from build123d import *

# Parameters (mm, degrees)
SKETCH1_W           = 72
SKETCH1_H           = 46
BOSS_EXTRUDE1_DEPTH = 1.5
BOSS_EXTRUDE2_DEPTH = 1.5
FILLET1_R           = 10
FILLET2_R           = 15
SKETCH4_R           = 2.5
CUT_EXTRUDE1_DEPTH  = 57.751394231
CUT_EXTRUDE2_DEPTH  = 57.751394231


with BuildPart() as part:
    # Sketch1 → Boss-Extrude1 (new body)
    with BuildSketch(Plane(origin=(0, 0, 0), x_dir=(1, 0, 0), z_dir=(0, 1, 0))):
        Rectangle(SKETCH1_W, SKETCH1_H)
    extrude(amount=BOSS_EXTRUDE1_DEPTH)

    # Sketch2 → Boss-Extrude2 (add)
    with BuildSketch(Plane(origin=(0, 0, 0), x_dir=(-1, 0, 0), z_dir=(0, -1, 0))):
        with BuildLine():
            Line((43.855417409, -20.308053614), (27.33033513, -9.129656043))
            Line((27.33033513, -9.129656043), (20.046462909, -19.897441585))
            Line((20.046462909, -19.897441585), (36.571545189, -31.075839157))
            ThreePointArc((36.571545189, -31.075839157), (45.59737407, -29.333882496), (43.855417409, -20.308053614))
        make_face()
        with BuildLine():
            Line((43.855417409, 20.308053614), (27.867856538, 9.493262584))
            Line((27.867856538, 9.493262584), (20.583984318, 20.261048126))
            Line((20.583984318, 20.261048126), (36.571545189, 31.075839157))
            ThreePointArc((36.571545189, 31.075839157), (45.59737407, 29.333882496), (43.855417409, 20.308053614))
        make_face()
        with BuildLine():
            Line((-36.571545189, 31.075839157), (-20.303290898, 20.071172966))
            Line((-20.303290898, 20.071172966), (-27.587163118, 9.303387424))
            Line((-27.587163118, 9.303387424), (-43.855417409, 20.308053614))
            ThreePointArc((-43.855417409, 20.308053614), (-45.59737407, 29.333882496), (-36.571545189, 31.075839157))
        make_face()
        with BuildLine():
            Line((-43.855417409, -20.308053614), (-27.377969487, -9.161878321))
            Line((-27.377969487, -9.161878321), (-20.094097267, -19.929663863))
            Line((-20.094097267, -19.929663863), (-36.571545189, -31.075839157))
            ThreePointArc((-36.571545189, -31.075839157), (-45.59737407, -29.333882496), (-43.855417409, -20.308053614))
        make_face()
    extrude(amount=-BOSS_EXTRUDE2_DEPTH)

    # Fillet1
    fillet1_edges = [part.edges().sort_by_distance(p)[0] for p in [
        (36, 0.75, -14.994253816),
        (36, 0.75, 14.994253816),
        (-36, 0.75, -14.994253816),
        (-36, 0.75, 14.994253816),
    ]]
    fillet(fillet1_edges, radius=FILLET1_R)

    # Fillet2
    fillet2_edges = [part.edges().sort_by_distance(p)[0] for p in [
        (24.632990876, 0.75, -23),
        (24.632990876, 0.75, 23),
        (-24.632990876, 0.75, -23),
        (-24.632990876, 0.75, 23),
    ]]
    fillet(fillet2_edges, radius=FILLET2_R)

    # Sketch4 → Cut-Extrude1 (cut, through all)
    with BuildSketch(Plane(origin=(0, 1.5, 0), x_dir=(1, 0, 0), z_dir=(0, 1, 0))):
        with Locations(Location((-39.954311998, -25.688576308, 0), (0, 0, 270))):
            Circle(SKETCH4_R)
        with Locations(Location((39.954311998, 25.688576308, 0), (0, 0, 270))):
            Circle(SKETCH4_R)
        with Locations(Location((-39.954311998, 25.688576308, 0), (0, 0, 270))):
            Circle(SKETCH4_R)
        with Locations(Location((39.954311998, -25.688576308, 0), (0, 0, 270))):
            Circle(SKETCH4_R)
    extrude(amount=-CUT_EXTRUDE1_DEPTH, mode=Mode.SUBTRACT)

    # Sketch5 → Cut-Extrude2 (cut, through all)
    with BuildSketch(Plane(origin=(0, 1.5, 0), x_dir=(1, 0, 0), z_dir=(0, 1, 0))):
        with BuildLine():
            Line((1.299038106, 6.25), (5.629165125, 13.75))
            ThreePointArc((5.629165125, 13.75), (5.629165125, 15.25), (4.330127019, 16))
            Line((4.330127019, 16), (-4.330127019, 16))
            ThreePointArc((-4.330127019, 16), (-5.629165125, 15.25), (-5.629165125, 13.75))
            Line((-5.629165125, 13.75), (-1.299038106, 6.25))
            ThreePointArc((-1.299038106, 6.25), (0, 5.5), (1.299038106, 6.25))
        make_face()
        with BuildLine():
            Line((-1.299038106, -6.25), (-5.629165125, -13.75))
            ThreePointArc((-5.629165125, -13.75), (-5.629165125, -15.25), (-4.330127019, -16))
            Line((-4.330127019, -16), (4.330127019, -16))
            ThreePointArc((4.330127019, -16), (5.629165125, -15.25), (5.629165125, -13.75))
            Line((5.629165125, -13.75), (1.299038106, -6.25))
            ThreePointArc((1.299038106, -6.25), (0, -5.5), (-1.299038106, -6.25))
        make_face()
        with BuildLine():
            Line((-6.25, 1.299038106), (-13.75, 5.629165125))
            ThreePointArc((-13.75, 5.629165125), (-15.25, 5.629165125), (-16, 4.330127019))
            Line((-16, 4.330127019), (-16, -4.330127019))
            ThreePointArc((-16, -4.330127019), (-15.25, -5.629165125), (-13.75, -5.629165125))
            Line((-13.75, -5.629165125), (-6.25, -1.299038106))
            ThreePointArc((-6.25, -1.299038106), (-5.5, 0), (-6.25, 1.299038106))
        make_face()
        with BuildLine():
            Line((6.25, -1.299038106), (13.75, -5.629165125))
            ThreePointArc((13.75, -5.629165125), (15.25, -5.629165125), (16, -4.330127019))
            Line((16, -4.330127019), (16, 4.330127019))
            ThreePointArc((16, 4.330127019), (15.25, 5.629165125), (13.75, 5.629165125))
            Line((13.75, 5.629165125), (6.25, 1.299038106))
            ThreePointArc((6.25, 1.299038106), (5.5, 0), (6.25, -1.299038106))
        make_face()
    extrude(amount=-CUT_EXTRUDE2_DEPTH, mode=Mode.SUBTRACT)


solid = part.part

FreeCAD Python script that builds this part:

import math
import FreeCAD as App
import Part
import Sketcher

V = App.Vector
Q = App.Units.Quantity


def edges_at(feature, points):
    """Names of the edges that pass closest to the given points."""
    edges = feature.Shape.Edges
    near = lambda p: min(range(len(edges)), key=lambda i: edges[i].distToShape(Part.Vertex(*p))[0])
    return sorted({f"Edge{near(p) + 1}" for p in points})

doc = App.newDocument("Part")
body = doc.addObject("PartDesign::Body", "Body")

# Sketch on XZ plane
sketch1 = body.newObject("Sketcher::SketchObject", "Sketch")
sketch1.AttachmentSupport = (doc.getObject("XZ_Plane"), [""])
sketch1.MapMode = "FlatFace"
sketch1.addGeometry([
    Part.LineSegment(V(-36, -23, 0), V(-36, 23, 0)),
    Part.LineSegment(V(-36, 23, 0), V(36, 23, 0)),
    Part.LineSegment(V(36, 23, 0), V(36, -23, 0)),
    Part.LineSegment(V(36, -23, 0), V(-36, -23, 0)),
], False)
sketch1.addConstraint([
    Sketcher.Constraint("Coincident", 0, 2, 1, 1),
    Sketcher.Constraint("Coincident", 1, 2, 2, 1),
    Sketcher.Constraint("Coincident", 2, 2, 3, 1),
    Sketcher.Constraint("Coincident", 3, 2, 0, 1),
    Sketcher.Constraint("Vertical", 0),
    Sketcher.Constraint("Horizontal", 1),
    Sketcher.Constraint("Vertical", 2),
    Sketcher.Constraint("Horizontal", 3),
    Sketcher.Constraint("Symmetric", 0, 2, 2, 2, -1, 1),
    Sketcher.Constraint("DistanceX", 1, 1, 1, 2, Q("72 mm")),
    Sketcher.Constraint("DistanceY", 0, 1, 0, 2, Q("46 mm")),
])
pad1 = body.newObject("PartDesign::Pad", "Pad")
pad1.Profile = sketch1
pad1.Length = 1.5
pad1.Reversed = True

# Sketch on XZ plane
sketch2 = body.newObject("Sketcher::SketchObject", "Sketch001")
sketch2.AttachmentSupport = (doc.getObject("XZ_Plane"), [""])
sketch2.MapMode = "FlatFace"
sketch2.addGeometry([
    Part.LineSegment(V(-44, 20, 0), V(-27, 9, 0)),  # 0
    Part.LineSegment(V(-27, 9, 0), V(-20, 20, 0)),  # 1
    Part.LineSegment(V(-20, 20, 0), V(-37, 31, 0)),  # 2
    Part.ArcOfCircle(Part.Circle(V(-40, 26, 0), V(0, 0, 1), 6), math.radians(56), math.radians(236)),  # 3
    Part.LineSegment(V(-28, -9, 0), V(-44, -20, 0)),  # 4
    Part.ArcOfCircle(Part.Circle(V(-40, -26, 0), V(0, 0, 1), 6), math.radians(124), math.radians(304)),  # 5
    Part.LineSegment(V(-37, -31, 0), V(-21, -20, 0)),  # 6
    Part.LineSegment(V(-21, -20, 0), V(-28, -9, 0)),  # 7
    Part.LineSegment(V(20, -20, 0), V(37, -31, 0)),  # 8
    Part.ArcOfCircle(Part.Circle(V(40, -26, 0), V(0, 0, 1), 6), math.radians(-124), math.radians(56)),  # 9
    Part.LineSegment(V(44, -20, 0), V(28, -9, 0)),  # 10
    Part.LineSegment(V(28, -9, 0), V(20, -20, 0)),  # 11
    Part.LineSegment(V(27, 9, 0), V(44, 20, 0)),  # 12
    Part.ArcOfCircle(Part.Circle(V(40, 26, 0), V(0, 0, 1), 6), math.radians(-56), math.radians(124)),  # 13
    Part.LineSegment(V(37, 31, 0), V(20, 20, 0)),  # 14
    Part.LineSegment(V(20, 20, 0), V(27, 9, 0)),  # 15
], False)
sketch2.addConstraint([
    Sketcher.Constraint("Coincident", 0, 2, 1, 1),
    Sketcher.Constraint("Coincident", 1, 2, 2, 1),
    Sketcher.Constraint("Tangent", 2, 2, 3, 1),
    Sketcher.Constraint("Tangent", 3, 2, 0, 1),
    Sketcher.Constraint("Tangent", 4, 2, 5, 1),
    Sketcher.Constraint("Tangent", 5, 2, 6, 1),
    Sketcher.Constraint("Coincident", 6, 2, 7, 1),
    Sketcher.Constraint("Coincident", 7, 2, 4, 1),
    Sketcher.Constraint("Tangent", 8, 2, 9, 1),
    Sketcher.Constraint("Tangent", 9, 2, 10, 1),
    Sketcher.Constraint("Coincident", 10, 2, 11, 1),
    Sketcher.Constraint("Coincident", 11, 2, 8, 1),
    Sketcher.Constraint("Tangent", 12, 2, 13, 1),
    Sketcher.Constraint("Tangent", 13, 2, 14, 1),
    Sketcher.Constraint("Coincident", 14, 2, 15, 1),
    Sketcher.Constraint("Coincident", 15, 2, 12, 1),
    Sketcher.Constraint("Equal", 3, 5),
    Sketcher.Constraint("Equal", 5, 9),
    Sketcher.Constraint("Equal", 9, 13),
    Sketcher.Constraint("Symmetric", 3, 3, 9, 3, -1, 1),
    Sketcher.Constraint("Symmetric", 5, 3, 13, 3, -1, 1),
    Sketcher.Constraint("Symmetric", 5, 3, 9, 3, -2),
    Sketcher.Constraint("Perpendicular", 0, 1),
    Sketcher.Constraint("Perpendicular", 1, 2),
    Sketcher.Constraint("Parallel", 4, 6),
    Sketcher.Constraint("Perpendicular", 6, 7),
    Sketcher.Constraint("Parallel", 2, 8),
    Sketcher.Constraint("Parallel", 8, 10),
    Sketcher.Constraint("Perpendicular", 10, 11),
    Sketcher.Constraint("Perpendicular", 7, 12),
    Sketcher.Constraint("Parallel", 12, 14),
    Sketcher.Constraint("Perpendicular", 14, 15),
    Sketcher.Constraint("Horizontal", 5, 2, 8, 2),
    Sketcher.Constraint("Radius", 3, Q("6.5 mm")),
    Sketcher.Constraint("DistanceY", 5, 3, 3, 2, Q("46 mm")),
    Sketcher.Constraint("DistanceY", 5, 3, 6, 2, Q("5.430898 mm")),
    Sketcher.Constraint("DistanceX", 7, 2, 8, 2, Q("64.439402 mm")),
    Sketcher.Constraint("Distance", 4, Q("19.30186 mm")),
    Sketcher.Constraint("DistanceY", -1, 1, 1, 2, Q("19.897442 mm")),
    Sketcher.Constraint("DistanceX", -1, 1, 11, 2, Q("20.303291 mm")),
    Sketcher.Constraint("DistanceX", -1, 1, 15, 2, Q("27.377969 mm")),
])
pad2 = body.newObject("PartDesign::Pad", "Pad001")
pad2.Profile = sketch2
pad2.Length = 1.5
pad2.Reversed = True
doc.recompute()

fillet = body.newObject("PartDesign::Fillet", "Fillet")
fillet.Base = (pad2, edges_at(pad2, [
    (36, 0.75, -14.994),
    (36, 0.75, 14.994),
    (-36, 0.75, -14.994),
    (-36, 0.75, 14.994),
]))
fillet.Radius = 10
doc.recompute()

fillet2 = body.newObject("PartDesign::Fillet", "Fillet001")
fillet2.Base = (fillet, edges_at(fillet, [
    (24.633, 0.75, -23),
    (24.633, 0.75, 23),
    (-24.633, 0.75, -23),
    (-24.633, 0.75, 23),
]))
fillet2.Radius = 15

# Sketch on XZ plane
sketch3 = body.newObject("Sketcher::SketchObject", "Sketch002")
sketch3.AttachmentSupport = (doc.getObject("XZ_Plane"), [""])
sketch3.MapMode = "FlatFace"
sketch3.AttachmentOffset = App.Placement(V(0, 0, -1.5), App.Rotation())
sketch3.addGeometry([
    Part.Circle(V(-40, 25.7, 0), V(0, 0, 1), 2.5),
    Part.Circle(V(40, -25.7, 0), V(0, 0, 1), 2.5),
    Part.Circle(V(-40, -25.7, 0), V(0, 0, 1), 2.5),
    Part.Circle(V(40, 25.7, 0), V(0, 0, 1), 2.5),
], False)
sketch3.addConstraint([
    Sketcher.Constraint("Equal", 0, 1),
    Sketcher.Constraint("Equal", 1, 2),
    Sketcher.Constraint("Equal", 2, 3),
    Sketcher.Constraint("Symmetric", 0, 3, 1, 3, -1, 1),
    Sketcher.Constraint("Symmetric", 2, 3, 3, 3, -1, 1),
    Sketcher.Constraint("Symmetric", 1, 3, 2, 3, -2),
    Sketcher.Constraint("Diameter", 0, Q("5 mm")),
    Sketcher.Constraint("DistanceX", 0, 3, -1, 1, Q("39.954312 mm")),
    Sketcher.Constraint("DistanceY", -1, 1, 0, 3, Q("25.688576 mm")),
])
pocket1 = body.newObject("PartDesign::Pocket", "Pocket")
pocket1.Profile = sketch3
pocket1.Type = "ThroughAll"
pocket1.Reversed = True

# Sketch on XZ plane
sketch4 = body.newObject("Sketcher::SketchObject", "Sketch003")
sketch4.AttachmentSupport = (doc.getObject("XZ_Plane"), [""])
sketch4.MapMode = "FlatFace"
sketch4.AttachmentOffset = App.Placement(V(0, 0, -1.5), App.Rotation())
sketch4.addGeometry([
    Part.LineSegment(V(1.3, -6.2, 0), V(5.6, -13.8, 0)),  # 0
    Part.ArcOfCircle(Part.Circle(V(4.3, -14.5, 0), V(0, 0, 1), 1.5), math.radians(-90), math.radians(30)),  # 1
    Part.LineSegment(V(4.3, -16, 0), V(-4.3, -16, 0)),  # 2
    Part.ArcOfCircle(Part.Circle(V(-4.3, -14.5, 0), V(0, 0, 1), 1.5), math.radians(150), math.radians(270)),  # 3
    Part.LineSegment(V(-5.6, -13.8, 0), V(-1.3, -6.2, 0)),  # 4
    Part.ArcOfCircle(Part.Circle(V(0, -7, 0), V(0, 0, 1), 1.5), math.radians(30), math.radians(150)),  # 5
    Part.LineSegment(V(-1.3, 6.2, 0), V(-5.6, 13.8, 0)),  # 6
    Part.ArcOfCircle(Part.Circle(V(-4.3, 14.5, 0), V(0, 0, 1), 1.5), math.radians(90), math.radians(210)),  # 7
    Part.LineSegment(V(-4.3, 16, 0), V(4.3, 16, 0)),  # 8
    Part.ArcOfCircle(Part.Circle(V(4.3, 14.5, 0), V(0, 0, 1), 1.5), math.radians(-30), math.radians(90)),  # 9
    Part.LineSegment(V(5.6, 13.8, 0), V(1.3, 6.2, 0)),  # 10
    Part.ArcOfCircle(Part.Circle(V(0, 7, 0), V(0, 0, 1), 1.5), math.radians(-150), math.radians(-30)),  # 11
    Part.LineSegment(V(-6.2, -1.3, 0), V(-13.8, -5.6, 0)),  # 12
    Part.ArcOfCircle(Part.Circle(V(-14.5, -4.3, 0), V(0, 0, 1), 1.5), math.radians(180), math.radians(300)),  # 13
    Part.LineSegment(V(-16, -4.3, 0), V(-16, 4.3, 0)),  # 14
    Part.ArcOfCircle(Part.Circle(V(-14.5, 4.3, 0), V(0, 0, 1), 1.5), math.radians(60), math.radians(180)),  # 15
    Part.LineSegment(V(-13.8, 5.6, 0), V(-6.2, 1.3, 0)),  # 16
    Part.ArcOfCircle(Part.Circle(V(-7, 0, 0), V(0, 0, 1), 1.5), math.radians(-60), math.radians(60)),  # 17
    Part.LineSegment(V(6.2, 1.3, 0), V(13.8, 5.6, 0)),  # 18
    Part.ArcOfCircle(Part.Circle(V(14.5, 4.3, 0), V(0, 0, 1), 1.5), math.radians(0), math.radians(120)),  # 19
    Part.LineSegment(V(16, 4.3, 0), V(16, -4.3, 0)),  # 20
    Part.ArcOfCircle(Part.Circle(V(14.5, -4.3, 0), V(0, 0, 1), 1.5), math.radians(-120), math.radians(0)),  # 21
    Part.LineSegment(V(13.8, -5.6, 0), V(6.2, -1.3, 0)),  # 22
    Part.ArcOfCircle(Part.Circle(V(7, 0, 0), V(0, 0, 1), 1.5), math.radians(120), math.radians(240)),  # 23
], False)
sketch4.addConstraint([
    Sketcher.Constraint("Tangent", 0, 2, 1, 2),
    Sketcher.Constraint("Tangent", 1, 1, 2, 1),
    Sketcher.Constraint("Tangent", 2, 2, 3, 2),
    Sketcher.Constraint("Tangent", 3, 1, 4, 1),
    Sketcher.Constraint("Tangent", 4, 2, 5, 2),
    Sketcher.Constraint("Tangent", 5, 1, 0, 1),
    Sketcher.Constraint("Tangent", 6, 2, 7, 2),
    Sketcher.Constraint("Tangent", 7, 1, 8, 1),
    Sketcher.Constraint("Tangent", 8, 2, 9, 2),
    Sketcher.Constraint("Tangent", 9, 1, 10, 1),
    Sketcher.Constraint("Tangent", 10, 2, 11, 2),
    Sketcher.Constraint("Tangent", 11, 1, 6, 1),
    Sketcher.Constraint("Tangent", 12, 2, 13, 2),
    Sketcher.Constraint("Tangent", 13, 1, 14, 1),
    Sketcher.Constraint("Tangent", 14, 2, 15, 2),
    Sketcher.Constraint("Tangent", 15, 1, 16, 1),
    Sketcher.Constraint("Tangent", 16, 2, 17, 2),
    Sketcher.Constraint("Tangent", 17, 1, 12, 1),
    Sketcher.Constraint("Tangent", 18, 2, 19, 2),
    Sketcher.Constraint("Tangent", 19, 1, 20, 1),
    Sketcher.Constraint("Tangent", 20, 2, 21, 2),
    Sketcher.Constraint("Tangent", 21, 1, 22, 1),
    Sketcher.Constraint("Tangent", 22, 2, 23, 2),
    Sketcher.Constraint("Tangent", 23, 1, 18, 1),
    Sketcher.Constraint("Horizontal", 2),
    Sketcher.Constraint("Horizontal", 8),
    Sketcher.Constraint("Vertical", 14),
    Sketcher.Constraint("Vertical", 20),
    Sketcher.Constraint("Equal", 1, 3),
    Sketcher.Constraint("Equal", 3, 5),
    Sketcher.Constraint("Equal", 5, 7),
    Sketcher.Constraint("Equal", 7, 9),
    Sketcher.Constraint("Equal", 9, 11),
    Sketcher.Constraint("Equal", 11, 13),
    Sketcher.Constraint("Equal", 13, 15),
    Sketcher.Constraint("Equal", 15, 17),
    Sketcher.Constraint("Equal", 17, 19),
    Sketcher.Constraint("Equal", 19, 21),
    Sketcher.Constraint("Equal", 21, 23),
    Sketcher.Constraint("Symmetric", 1, 3, 7, 3, -1, 1),
    Sketcher.Constraint("Symmetric", 5, 3, 11, 3, -1, 1),
    Sketcher.Constraint("Symmetric", 13, 3, 19, 3, -1, 1),
    Sketcher.Constraint("Symmetric", 17, 3, 23, 3, -1, 1),
    Sketcher.Constraint("Symmetric", 0, 2, 3, 1, -2),
    Sketcher.Constraint("Symmetric", 15, 1, 18, 2, -2),
    Sketcher.Constraint("Parallel", 4, 10),
    Sketcher.Constraint("Perpendicular", 6, 12),
    Sketcher.Constraint("Parallel", 16, 22),
    Sketcher.Constraint("Equal", 8, 14),
    Sketcher.Constraint("Radius", 1, Q("1.5 mm")),
    Sketcher.Constraint("Angle", 0, Q("-60 deg")),
    Sketcher.Constraint("DistanceY", 5, 3, -1, 1, Q("7 mm")),
    Sketcher.Constraint("DistanceX", 17, 3, -1, 1, Q("7 mm")),
    Sketcher.Constraint("DistanceY", 1, 1, -1, 1, Q("16 mm")),
])
pocket2 = body.newObject("PartDesign::Pocket", "Pocket001")
pocket2.Profile = sketch4
pocket2.Type = "ThroughAll"
pocket2.Reversed = True

doc.recompute()
